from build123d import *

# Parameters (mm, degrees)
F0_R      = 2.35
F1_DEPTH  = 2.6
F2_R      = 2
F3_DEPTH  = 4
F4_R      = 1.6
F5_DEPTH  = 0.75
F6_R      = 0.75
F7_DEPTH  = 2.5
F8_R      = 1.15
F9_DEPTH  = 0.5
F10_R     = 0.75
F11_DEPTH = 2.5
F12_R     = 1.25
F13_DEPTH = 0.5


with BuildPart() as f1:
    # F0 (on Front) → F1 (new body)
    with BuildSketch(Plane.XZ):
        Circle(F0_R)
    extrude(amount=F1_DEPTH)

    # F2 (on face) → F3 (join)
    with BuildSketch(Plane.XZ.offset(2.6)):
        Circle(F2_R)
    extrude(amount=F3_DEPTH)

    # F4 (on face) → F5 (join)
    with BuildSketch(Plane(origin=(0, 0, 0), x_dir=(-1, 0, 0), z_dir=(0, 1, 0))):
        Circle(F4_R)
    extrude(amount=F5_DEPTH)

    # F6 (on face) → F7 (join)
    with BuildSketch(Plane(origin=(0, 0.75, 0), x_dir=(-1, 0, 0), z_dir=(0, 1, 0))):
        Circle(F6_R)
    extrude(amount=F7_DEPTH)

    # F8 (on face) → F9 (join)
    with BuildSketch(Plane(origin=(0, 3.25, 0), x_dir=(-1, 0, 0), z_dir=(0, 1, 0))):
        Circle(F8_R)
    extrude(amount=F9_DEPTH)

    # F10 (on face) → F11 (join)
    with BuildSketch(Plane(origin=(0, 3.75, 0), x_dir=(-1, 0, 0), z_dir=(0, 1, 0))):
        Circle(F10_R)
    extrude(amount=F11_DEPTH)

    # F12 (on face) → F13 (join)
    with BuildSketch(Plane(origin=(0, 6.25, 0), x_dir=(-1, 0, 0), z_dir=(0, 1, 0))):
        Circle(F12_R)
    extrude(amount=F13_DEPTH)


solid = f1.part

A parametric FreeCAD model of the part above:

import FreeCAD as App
import Part
import Sketcher

V = App.Vector
Q = App.Units.Quantity

doc = App.newDocument("Part")
body = doc.addObject("PartDesign::Body", "Body")

sketch1 = body.newObject("Sketcher::SketchObject", "Sketch")
sketch1.AttachmentSupport = (doc.getObject("XZ_Plane"), [""])
sketch1.MapMode = "FlatFace"
sketch1.addGeometry(Part.Circle(V(0, 0, 0), V(0, 0, 1), 2.4), False)
sketch1.addConstraint(Sketcher.Constraint("Coincident", 0, 3, -1, 1))
sketch1.addConstraint(Sketcher.Constraint("Diameter", 0, Q("4.7 mm")))
pad1 = body.newObject("PartDesign::Pad", "Pad")
pad1.Profile = sketch1
pad1.Length = 2.6

sketch2 = body.newObject("Sketcher::SketchObject", "Sketch001")
sketch2.AttachmentSupport = (doc.getObject("XZ_Plane"), [""])
sketch2.MapMode = "FlatFace"
sketch2.AttachmentOffset = App.Placement(V(0, 0, 2.6), App.Rotation())
sketch2.addGeometry(Part.Circle(V(0, 0, 0), V(0, 0, 1), 2), False)
sketch2.addConstraint(Sketcher.Constraint("Coincident", 0, 3, -1, 1))
sketch2.addConstraint(Sketcher.Constraint("Diameter", 0, Q("4 mm")))
pad2 = body.newObject("PartDesign::Pad", "Pad001")
pad2.Profile = sketch2
pad2.Length = 4

sketch3 = body.newObject("Sketcher::SketchObject", "Sketch002")
sketch3.AttachmentSupport = (doc.getObject("XZ_Plane"), [""])
sketch3.MapMode = "FlatFace"
sketch3.addGeometry(Part.Circle(V(0, 0, 0), V(0, 0, 1), 1.6), False)
sketch3.addConstraint(Sketcher.Constraint("Coincident", 0, 3, -1, 1))
sketch3.addConstraint(Sketcher.Constraint("Diameter", 0, Q("3.2 mm")))
pad3 = body.newObject("PartDesign::Pad", "Pad002")
pad3.Profile = sketch3
pad3.Length = 0.75
pad3.Reversed = True

sketch4 = body.newObject("Sketcher::SketchObject", "Sketch003")
sketch4.AttachmentSupport = (doc.getObject("XZ_Plane"), [""])
sketch4.MapMode = "FlatFace"
sketch4.AttachmentOffset = App.Placement(V(0, 0, -0.75), App.Rotation())
sketch4.addGeometry(Part.Circle(V(0, 0, 0), V(0, 0, 1), 0.8), False)
sketch4.addConstraint(Sketcher.Constraint("Coincident", 0, 3, -1, 1))
sketch4.addConstraint(Sketcher.Constraint("Diameter", 0, Q("1.5 mm")))
pad4 = body.newObject("PartDesign::Pad", "Pad003")
pad4.Profile = sketch4
pad4.Length = 2.5
pad4.Reversed = True

sketch5 = body.newObject("Sketcher::SketchObject", "Sketch004")
sketch5.AttachmentSupport = (doc.getObject("XZ_Plane"), [""])
sketch5.MapMode = "FlatFace"
sketch5.AttachmentOffset = App.Placement(V(0, 0, -3.25), App.Rotation())
sketch5.addGeometry(Part.Circle(V(0, 0, 0), V(0, 0, 1), 1.1), False)
sketch5.addConstraint(Sketcher.Constraint("Coincident", 0, 3, -1, 1))
sketch5.addConstraint(Sketcher.Constraint("Diameter", 0, Q("2.3 mm")))
pad5 = body.newObject("PartDesign::Pad", "Pad004")
pad5.Profile = sketch5
pad5.Length = 0.5
pad5.Reversed = True

sketch6 = body.newObject("Sketcher::SketchObject", "Sketch005")
sketch6.AttachmentSupport = (doc.getObject("XZ_Plane"), [""])
sketch6.MapMode = "FlatFace"
sketch6.AttachmentOffset = App.Placement(V(0, 0, -3.75), App.Rotation())
sketch6.addGeometry(Part.Circle(V(0, 0, 0), V(0, 0, 1), 0.8), False)
sketch6.addConstraint(Sketcher.Constraint("Coincident", 0, 3, -1, 1))
sketch6.addConstraint(Sketcher.Constraint("Diameter", 0, Q("1.5 mm")))
pad6 = body.newObject("PartDesign::Pad", "Pad005")
pad6.Profile = sketch6
pad6.Length = 2.5
pad6.Reversed = True

sketch7 = body.newObject("Sketcher::SketchObject", "Sketch006")
sketch7.AttachmentSupport = (doc.getObject("XZ_Plane"), [""])
sketch7.MapMode = "FlatFace"
sketch7.AttachmentOffset = App.Placement(V(0, 0, -6.25), App.Rotation())
sketch7.addGeometry(Part.Circle(V(0, 0, 0), V(0, 0, 1), 1.2), False)
sketch7.addConstraint(Sketcher.Constraint("Coincident", 0, 3, -1, 1))
sketch7.addConstraint(Sketcher.Constraint("Diameter", 0, Q("2.5 mm")))
pad7 = body.newObject("PartDesign::Pad", "Pad006")
pad7.Profile = sketch7
pad7.Length = 0.5
pad7.Reversed = True

doc.recompute()
